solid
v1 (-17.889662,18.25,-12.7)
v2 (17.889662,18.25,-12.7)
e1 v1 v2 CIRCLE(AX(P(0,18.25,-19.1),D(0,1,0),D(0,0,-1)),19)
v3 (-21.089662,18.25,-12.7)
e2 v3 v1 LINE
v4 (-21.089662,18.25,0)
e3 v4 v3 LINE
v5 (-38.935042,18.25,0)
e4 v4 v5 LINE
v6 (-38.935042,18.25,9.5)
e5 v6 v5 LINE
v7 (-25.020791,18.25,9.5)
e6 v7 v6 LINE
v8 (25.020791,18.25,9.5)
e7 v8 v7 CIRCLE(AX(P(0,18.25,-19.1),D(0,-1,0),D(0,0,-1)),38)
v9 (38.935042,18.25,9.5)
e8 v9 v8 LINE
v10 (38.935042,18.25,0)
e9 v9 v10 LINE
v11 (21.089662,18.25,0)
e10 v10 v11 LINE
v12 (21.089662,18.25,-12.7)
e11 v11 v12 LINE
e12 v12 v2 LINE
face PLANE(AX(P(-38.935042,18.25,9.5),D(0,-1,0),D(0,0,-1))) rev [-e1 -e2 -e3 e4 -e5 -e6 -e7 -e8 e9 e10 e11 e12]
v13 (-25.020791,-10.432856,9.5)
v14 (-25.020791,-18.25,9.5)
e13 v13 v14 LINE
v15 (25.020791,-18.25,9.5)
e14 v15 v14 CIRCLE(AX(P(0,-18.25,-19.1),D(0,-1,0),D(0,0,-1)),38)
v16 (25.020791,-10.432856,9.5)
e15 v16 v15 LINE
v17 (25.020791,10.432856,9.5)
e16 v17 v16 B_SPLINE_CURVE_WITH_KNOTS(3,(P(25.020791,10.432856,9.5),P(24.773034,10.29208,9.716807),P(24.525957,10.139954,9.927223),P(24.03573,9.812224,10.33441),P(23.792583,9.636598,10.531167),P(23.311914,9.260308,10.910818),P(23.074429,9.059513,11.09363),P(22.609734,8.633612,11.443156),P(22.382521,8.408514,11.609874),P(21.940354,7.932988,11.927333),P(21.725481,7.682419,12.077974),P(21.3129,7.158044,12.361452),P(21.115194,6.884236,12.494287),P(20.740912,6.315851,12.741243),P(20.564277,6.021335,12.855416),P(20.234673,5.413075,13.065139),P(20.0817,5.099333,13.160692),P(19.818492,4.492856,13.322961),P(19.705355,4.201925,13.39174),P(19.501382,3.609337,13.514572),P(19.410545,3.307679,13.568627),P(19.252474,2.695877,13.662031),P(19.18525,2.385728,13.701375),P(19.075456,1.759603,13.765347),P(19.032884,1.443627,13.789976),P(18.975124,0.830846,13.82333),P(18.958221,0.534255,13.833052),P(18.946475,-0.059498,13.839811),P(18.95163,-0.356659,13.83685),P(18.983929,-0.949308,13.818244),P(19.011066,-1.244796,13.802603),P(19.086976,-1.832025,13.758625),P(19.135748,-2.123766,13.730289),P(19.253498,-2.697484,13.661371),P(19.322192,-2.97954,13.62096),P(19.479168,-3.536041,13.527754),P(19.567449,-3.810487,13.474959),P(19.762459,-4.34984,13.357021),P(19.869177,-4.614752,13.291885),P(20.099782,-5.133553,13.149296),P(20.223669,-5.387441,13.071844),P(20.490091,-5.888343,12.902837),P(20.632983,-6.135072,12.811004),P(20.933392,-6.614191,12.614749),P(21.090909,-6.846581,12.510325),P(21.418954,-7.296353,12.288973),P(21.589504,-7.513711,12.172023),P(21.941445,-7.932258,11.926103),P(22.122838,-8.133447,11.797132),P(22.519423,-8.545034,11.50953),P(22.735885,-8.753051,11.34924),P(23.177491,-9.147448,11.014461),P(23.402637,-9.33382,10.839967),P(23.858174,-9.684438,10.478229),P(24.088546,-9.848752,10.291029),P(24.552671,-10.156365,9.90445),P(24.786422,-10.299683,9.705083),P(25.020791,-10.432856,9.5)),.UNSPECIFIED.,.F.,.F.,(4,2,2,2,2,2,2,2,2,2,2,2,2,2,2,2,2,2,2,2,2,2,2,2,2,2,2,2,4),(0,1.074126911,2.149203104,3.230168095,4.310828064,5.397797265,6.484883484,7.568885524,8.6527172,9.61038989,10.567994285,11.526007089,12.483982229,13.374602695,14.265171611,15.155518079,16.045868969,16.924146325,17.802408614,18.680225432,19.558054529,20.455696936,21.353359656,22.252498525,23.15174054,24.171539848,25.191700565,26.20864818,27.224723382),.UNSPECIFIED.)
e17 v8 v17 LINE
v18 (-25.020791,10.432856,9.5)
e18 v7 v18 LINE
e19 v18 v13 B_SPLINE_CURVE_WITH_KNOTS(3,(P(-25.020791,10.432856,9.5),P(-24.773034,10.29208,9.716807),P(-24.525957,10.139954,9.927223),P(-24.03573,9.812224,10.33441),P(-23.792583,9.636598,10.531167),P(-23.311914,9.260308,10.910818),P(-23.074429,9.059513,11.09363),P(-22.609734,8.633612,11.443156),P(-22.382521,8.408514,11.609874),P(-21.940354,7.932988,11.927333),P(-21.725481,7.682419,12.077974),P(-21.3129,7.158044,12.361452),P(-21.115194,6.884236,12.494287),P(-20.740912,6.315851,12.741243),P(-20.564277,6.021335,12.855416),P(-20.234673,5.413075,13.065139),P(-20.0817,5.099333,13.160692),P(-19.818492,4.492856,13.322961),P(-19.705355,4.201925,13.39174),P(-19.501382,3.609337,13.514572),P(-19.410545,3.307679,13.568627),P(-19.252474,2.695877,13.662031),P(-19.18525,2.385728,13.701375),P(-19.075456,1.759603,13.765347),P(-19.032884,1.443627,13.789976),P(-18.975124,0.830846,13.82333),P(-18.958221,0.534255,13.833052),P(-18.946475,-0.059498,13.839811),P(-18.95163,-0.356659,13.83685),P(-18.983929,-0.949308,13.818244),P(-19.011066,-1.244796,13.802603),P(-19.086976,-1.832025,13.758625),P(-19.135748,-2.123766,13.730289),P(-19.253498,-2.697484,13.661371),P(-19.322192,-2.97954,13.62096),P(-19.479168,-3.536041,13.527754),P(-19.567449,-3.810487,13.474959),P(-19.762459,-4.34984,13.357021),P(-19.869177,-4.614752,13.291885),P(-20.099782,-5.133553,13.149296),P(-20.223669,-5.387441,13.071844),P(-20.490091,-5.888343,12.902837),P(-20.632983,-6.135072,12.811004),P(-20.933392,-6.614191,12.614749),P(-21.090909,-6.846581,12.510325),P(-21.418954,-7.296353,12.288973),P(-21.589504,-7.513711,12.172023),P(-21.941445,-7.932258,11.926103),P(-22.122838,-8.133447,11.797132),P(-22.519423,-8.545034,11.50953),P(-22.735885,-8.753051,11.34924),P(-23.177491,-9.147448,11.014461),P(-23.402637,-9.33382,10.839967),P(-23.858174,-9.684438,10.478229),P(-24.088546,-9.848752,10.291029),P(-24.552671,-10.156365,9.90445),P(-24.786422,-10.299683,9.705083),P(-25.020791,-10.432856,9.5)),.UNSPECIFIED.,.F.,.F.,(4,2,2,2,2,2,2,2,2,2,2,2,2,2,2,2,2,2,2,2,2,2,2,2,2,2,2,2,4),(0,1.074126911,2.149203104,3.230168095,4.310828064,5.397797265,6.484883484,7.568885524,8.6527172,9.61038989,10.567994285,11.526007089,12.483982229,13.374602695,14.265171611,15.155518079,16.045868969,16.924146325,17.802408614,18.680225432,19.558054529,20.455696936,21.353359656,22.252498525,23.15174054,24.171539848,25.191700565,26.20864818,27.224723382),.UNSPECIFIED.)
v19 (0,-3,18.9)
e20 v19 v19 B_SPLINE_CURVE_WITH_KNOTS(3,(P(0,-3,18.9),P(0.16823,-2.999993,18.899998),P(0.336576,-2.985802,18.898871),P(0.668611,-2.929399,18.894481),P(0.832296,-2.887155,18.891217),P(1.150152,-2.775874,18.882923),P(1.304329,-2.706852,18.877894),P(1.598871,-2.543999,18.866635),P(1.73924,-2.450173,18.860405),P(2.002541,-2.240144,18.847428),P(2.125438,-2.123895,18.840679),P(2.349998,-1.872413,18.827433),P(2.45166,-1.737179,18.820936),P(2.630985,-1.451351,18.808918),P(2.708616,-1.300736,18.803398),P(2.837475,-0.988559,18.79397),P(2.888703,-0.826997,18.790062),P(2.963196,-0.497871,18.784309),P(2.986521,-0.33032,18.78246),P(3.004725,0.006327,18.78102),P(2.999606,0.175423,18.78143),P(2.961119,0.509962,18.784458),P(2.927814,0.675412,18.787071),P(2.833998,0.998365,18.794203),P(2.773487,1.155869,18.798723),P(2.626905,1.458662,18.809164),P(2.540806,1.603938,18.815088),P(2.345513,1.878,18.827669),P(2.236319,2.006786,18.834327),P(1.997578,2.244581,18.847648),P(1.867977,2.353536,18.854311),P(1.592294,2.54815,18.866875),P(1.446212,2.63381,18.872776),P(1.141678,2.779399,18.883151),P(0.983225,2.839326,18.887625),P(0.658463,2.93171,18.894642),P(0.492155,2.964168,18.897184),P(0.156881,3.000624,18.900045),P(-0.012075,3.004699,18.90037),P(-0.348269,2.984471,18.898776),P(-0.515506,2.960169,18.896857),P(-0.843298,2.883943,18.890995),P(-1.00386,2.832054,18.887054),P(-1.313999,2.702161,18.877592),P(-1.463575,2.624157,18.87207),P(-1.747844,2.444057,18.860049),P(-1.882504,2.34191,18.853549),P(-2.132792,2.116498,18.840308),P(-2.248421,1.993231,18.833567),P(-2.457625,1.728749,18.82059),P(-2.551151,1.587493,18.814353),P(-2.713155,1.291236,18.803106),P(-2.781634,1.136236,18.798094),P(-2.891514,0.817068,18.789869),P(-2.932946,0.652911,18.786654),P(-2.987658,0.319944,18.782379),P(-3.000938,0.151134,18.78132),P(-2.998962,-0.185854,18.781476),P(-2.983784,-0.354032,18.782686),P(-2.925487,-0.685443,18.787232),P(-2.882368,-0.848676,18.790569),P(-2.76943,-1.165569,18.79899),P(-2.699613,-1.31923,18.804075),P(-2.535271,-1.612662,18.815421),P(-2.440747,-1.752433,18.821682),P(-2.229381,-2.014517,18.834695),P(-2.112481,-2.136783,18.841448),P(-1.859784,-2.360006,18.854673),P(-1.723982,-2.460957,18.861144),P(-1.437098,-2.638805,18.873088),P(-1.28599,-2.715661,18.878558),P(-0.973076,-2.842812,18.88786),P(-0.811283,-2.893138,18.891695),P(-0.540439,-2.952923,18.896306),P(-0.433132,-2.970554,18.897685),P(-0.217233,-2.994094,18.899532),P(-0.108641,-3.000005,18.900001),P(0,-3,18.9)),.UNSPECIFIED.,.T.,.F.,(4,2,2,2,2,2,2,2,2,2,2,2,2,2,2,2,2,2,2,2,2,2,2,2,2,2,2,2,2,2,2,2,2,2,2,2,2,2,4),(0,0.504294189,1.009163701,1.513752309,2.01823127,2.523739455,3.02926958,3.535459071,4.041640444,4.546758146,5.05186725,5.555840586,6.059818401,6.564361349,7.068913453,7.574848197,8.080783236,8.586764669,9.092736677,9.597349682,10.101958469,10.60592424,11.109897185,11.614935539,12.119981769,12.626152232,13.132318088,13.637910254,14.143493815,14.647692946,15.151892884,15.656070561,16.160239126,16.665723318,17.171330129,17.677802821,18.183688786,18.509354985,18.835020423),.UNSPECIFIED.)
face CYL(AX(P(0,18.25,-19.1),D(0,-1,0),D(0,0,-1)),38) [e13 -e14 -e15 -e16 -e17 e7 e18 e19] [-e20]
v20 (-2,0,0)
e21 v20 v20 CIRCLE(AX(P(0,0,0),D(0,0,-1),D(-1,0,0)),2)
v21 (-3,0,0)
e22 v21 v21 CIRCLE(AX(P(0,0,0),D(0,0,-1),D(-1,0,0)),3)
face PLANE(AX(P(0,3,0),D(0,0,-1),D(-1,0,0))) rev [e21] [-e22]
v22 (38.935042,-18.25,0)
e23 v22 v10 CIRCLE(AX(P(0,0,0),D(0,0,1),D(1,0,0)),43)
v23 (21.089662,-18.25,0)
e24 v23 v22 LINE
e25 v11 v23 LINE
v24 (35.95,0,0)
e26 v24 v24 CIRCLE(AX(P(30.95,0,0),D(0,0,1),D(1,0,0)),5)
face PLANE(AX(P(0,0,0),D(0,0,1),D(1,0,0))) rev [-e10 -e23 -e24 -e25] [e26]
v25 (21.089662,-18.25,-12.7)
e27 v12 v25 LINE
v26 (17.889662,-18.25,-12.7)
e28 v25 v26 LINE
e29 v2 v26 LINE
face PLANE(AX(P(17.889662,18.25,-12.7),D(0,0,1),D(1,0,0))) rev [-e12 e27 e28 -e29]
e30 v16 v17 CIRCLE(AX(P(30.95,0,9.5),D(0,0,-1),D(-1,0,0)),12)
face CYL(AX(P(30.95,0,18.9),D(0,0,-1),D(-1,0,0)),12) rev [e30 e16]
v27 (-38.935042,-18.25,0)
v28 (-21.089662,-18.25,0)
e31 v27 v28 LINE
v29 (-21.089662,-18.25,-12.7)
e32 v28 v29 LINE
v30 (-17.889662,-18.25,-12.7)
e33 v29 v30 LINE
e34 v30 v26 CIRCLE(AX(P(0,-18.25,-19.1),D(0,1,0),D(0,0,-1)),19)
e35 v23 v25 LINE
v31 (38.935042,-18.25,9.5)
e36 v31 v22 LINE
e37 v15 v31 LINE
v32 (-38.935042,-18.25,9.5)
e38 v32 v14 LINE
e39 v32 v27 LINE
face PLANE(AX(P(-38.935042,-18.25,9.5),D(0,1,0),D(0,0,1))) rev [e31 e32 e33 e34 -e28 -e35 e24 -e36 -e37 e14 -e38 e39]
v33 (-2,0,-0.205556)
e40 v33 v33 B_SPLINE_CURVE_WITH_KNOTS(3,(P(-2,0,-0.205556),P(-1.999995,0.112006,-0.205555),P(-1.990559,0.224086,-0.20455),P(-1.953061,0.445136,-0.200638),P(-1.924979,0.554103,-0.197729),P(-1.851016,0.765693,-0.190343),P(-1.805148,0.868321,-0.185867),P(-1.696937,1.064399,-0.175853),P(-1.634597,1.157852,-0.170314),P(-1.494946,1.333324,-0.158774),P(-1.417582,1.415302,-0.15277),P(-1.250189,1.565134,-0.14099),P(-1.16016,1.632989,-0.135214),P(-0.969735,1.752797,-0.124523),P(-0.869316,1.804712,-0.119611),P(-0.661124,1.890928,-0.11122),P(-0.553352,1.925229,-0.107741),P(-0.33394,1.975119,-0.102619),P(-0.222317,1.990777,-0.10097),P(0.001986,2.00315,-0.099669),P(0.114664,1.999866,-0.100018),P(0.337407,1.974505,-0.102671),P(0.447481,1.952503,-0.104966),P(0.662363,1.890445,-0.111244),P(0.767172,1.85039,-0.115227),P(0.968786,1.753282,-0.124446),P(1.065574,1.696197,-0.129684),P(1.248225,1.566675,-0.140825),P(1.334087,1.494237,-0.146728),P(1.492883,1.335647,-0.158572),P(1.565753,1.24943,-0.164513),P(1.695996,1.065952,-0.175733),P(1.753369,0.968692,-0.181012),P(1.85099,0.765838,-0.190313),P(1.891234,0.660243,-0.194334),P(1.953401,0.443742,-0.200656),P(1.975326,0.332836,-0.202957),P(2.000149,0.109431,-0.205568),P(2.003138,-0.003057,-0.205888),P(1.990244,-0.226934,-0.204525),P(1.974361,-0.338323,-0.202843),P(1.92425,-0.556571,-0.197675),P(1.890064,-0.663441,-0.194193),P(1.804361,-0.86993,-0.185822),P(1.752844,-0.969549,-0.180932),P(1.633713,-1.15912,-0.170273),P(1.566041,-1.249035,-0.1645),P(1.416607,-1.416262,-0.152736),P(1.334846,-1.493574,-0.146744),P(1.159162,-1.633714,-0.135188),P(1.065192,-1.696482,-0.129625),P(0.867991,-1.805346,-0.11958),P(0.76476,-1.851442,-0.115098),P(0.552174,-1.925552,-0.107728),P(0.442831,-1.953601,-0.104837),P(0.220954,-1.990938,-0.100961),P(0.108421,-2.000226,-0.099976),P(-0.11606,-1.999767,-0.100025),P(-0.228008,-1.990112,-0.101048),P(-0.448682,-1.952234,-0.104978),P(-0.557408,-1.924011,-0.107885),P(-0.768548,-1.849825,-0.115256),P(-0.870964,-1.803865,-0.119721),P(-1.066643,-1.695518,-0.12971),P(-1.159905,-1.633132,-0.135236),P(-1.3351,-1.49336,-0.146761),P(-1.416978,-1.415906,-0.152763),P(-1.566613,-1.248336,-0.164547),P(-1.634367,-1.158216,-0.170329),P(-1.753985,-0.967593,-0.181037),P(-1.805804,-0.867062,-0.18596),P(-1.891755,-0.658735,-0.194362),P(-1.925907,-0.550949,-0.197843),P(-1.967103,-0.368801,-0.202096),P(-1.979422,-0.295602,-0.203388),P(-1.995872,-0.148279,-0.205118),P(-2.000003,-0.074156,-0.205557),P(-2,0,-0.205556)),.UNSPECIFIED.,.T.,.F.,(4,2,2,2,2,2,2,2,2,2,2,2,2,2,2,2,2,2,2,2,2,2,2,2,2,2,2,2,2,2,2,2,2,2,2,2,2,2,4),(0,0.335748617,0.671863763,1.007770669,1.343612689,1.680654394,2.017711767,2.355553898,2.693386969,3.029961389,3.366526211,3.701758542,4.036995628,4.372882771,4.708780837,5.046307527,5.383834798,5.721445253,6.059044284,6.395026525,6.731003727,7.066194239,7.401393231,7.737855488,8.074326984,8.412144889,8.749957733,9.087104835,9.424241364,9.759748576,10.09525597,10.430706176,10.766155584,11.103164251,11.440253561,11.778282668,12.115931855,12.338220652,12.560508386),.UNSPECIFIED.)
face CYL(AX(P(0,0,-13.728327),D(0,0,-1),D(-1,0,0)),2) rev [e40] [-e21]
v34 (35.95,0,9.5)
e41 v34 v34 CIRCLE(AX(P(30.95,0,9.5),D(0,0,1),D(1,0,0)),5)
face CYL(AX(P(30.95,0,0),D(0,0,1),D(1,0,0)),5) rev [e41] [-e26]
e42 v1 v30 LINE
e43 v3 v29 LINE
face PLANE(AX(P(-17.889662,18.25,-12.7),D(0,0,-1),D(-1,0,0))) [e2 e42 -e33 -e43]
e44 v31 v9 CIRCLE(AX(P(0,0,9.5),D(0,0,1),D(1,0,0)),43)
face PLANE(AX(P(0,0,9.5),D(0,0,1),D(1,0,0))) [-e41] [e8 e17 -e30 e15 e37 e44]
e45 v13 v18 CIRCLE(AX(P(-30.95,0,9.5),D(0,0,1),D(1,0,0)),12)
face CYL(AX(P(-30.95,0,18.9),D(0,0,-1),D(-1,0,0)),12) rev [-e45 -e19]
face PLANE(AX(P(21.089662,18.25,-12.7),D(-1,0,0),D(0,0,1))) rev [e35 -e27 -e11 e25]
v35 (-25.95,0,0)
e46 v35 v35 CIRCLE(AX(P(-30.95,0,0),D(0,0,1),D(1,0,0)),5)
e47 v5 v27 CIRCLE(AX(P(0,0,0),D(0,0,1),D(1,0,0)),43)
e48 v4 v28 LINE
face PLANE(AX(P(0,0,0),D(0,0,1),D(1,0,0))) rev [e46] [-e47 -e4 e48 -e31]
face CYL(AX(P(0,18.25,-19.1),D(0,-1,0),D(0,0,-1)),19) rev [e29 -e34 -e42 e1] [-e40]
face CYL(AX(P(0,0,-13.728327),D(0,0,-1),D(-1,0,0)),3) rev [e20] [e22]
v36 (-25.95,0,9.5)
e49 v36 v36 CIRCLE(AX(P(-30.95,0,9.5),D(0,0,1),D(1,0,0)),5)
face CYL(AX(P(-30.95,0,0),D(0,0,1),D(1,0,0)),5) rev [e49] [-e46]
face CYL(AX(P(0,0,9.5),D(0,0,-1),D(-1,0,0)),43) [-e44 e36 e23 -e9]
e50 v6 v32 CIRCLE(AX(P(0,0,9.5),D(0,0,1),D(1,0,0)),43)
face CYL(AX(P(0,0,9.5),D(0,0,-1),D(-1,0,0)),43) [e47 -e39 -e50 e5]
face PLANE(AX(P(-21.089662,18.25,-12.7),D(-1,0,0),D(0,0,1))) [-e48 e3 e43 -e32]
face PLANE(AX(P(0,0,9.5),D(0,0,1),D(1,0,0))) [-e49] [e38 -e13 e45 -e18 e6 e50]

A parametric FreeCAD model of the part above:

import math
import FreeCAD as App
import Part
import Sketcher
from FreeCAD import Vector

doc = App.newDocument("Part")
body = doc.addObject("PartDesign::Body", "Body")

# Sketch on XY plane
sketch1 = body.newObject("Sketcher::SketchObject", "Sketch")
sketch1.AttachmentSupport = (doc.getObject("XY_Plane"), [""])
sketch1.MapMode = "FlatFace"
sketch1.addGeometry([
    Part.LineSegment(Vector(39, 18, 0), Vector(-39, 18, 0)),
    Part.ArcOfCircle(Part.Circle(Vector(0, 0, 0), Vector(0, 0, 1), 43), math.radians(155), math.radians(205)),
    Part.LineSegment(Vector(-39, -18, 0), Vector(39, -18, 0)),
    Part.ArcOfCircle(Part.Circle(Vector(0, 0, 0), Vector(0, 0, 1), 43), math.radians(-25), math.radians(25)),
], False)
sketch1.addConstraint([
    Sketcher.Constraint("Coincident", 0, 2, 1, 1),
    Sketcher.Constraint("Coincident", 1, 2, 2, 1),
    Sketcher.Constraint("Coincident", 2, 2, 3, 1),
    Sketcher.Constraint("Coincident", 3, 2, 0, 1),
    Sketcher.Constraint("Horizontal", 0),
    Sketcher.Constraint("Horizontal", 2),
    Sketcher.Constraint("Coincident", 1, 3, -1, 1),
    Sketcher.Constraint("Coincident", 3, 3, -1, 1),
    Sketcher.Constraint("Equal", 1, 3),
    Sketcher.Constraint("Vertical", 0, 2, 1, 2),
    Sketcher.Constraint("Radius", 1, 43.0),
    Sketcher.Constraint("DistanceY", 1, 2, 0, 2, 36.5),
])
pad1 = body.newObject("PartDesign::Pad", "Pad")
pad1.Profile = sketch1
pad1.Length = 9.5

# Sketch on XY plane
sketch2 = body.newObject("Sketcher::SketchObject", "Sketch001")
sketch2.AttachmentSupport = (doc.getObject("XY_Plane"), [""])
sketch2.MapMode = "FlatFace"
sketch2.AttachmentOffset = App.Placement(Vector(0, 0, 9.5), App.Rotation())
sketch2.addGeometry([
    Part.Circle(Vector(-31, 0, 0), Vector(0, 0, 1), 5),
    Part.Circle(Vector(31, 0, 0), Vector(0, 0, 1), 5),
], False)
sketch2.addConstraint([
    Sketcher.Constraint("Equal", 0, 1),
    Sketcher.Constraint("Symmetric", 0, 3, 1, 3, -1, 1),
    Sketcher.Constraint("PointOnObject", 0, 3, -1),
    Sketcher.Constraint("Diameter", 0, 10.0),
    Sketcher.Constraint("DistanceX", 0, 3, 1, 3, 61.9),
])
pocket1 = body.newObject("PartDesign::Pocket", "Pocket")
pocket1.Profile = sketch2
pocket1.Length = 9.5

# Sketch on XZ plane
sketch3 = body.newObject("Sketcher::SketchObject", "Sketch002")
sketch3.AttachmentSupport = (doc.getObject("XZ_Plane"), [""])
sketch3.MapMode = "FlatFace"
sketch3.AttachmentOffset = App.Placement(Vector(0, 0, 18.25), App.Rotation())
sketch3.addGeometry([
    Part.LineSegment(Vector(0, -0.1, 0), Vector(0, 0, 0)),  # 0
    Part.LineSegment(Vector(0, 0, 0), Vector(-21.09, 0, 0)),  # 1
    Part.LineSegment(Vector(-21.09, 0, 0), Vector(-21.09, -12.7, 0)),  # 2
    Part.LineSegment(Vector(-21.09, -12.7, 0), Vector(-17.89, -12.7, 0)),  # 3
    Part.ArcOfCircle(Part.Circle(Vector(0, -19.1, 0), Vector(0, 0, 1), 19), math.radians(90), math.radians(160)),  # 4
    Part.LineSegment(Vector(0, 9.5, 0), Vector(0, 18.9, 0)),  # 5
    Part.ArcOfCircle(Part.Circle(Vector(0, -19.1, 0), Vector(0, 0, 1), 38), math.radians(90), math.radians(131)),  # 6
    Part.LineSegment(Vector(-25.02, 9.5, 0), Vector(0, 9.5, 0)),  # 7
], False)
sketch3.addConstraint([
    Sketcher.Constraint("Coincident", 0, 2, 1, 1),
    Sketcher.Constraint("Coincident", 1, 2, 2, 1),
    Sketcher.Constraint("Coincident", 2, 2, 3, 1),
    Sketcher.Constraint("Coincident", 3, 2, 4, 2),
    Sketcher.Constraint("Coincident", 4, 1, 0, 1),
    Sketcher.Constraint("Coincident", 5, 2, 6, 1),
    Sketcher.Constraint("Coincident", 6, 2, 7, 1),
    Sketcher.Constraint("Coincident", 7, 2, 5, 1),
    Sketcher.Constraint("Vertical", 0),
    Sketcher.Constraint("Horizontal", 1),
    Sketcher.Constraint("Vertical", 2),
    Sketcher.Constraint("Horizontal", 3),
    Sketcher.Constraint("Vertical", 5),
    Sketcher.Constraint("Horizontal", 7),
    Sketcher.Constraint("Coincident", 0, 2, -1, 1),
    Sketcher.Constraint("Coincident", 6, 3, 4, 3),
    Sketcher.Constraint("PointOnObject", 4, 3, -2),
    Sketcher.Constraint("PointOnObject", 5, 2, -2),
    Sketcher.Constraint("Radius", 4, 19.0),
    Sketcher.Constraint("Radius", 6, 38.0),
    Sketcher.Constraint("DistanceX", 3, 1, 3, 2, 3.2),
    Sketcher.Constraint("DistanceY", 0, 1, 0, 2, 0.1),
    Sketcher.Constraint("DistanceY", 2, 2, 2, 1, 12.7),
    Sketcher.Constraint("DistanceY", 5, 1, 5, 2, 9.4),
])
pad2 = body.newObject("PartDesign::Pad", "Pad001")
pad2.Profile = sketch3
pad2.Length = 36.5
pad2.Reversed = True
doc.recompute()

mirrored = body.newObject("PartDesign::Mirrored", "Mirrored")
mirrored.Originals = [pad2]
mirrored.MirrorPlane = (doc.getObject("YZ_Plane"), [""])
body.Tip = mirrored

# Sketch on XY plane
sketch4 = body.newObject("Sketcher::SketchObject", "Sketch003")
sketch4.AttachmentSupport = (doc.getObject("XY_Plane"), [""])
sketch4.MapMode = "FlatFace"
sketch4.AttachmentOffset = App.Placement(Vector(0, 0, 9.5), App.Rotation())
sketch4.addGeometry(Part.Circle(Vector(-31, 0, 0), Vector(0, 0, 1), 12), False)
sketch4.addConstraint([
    Sketcher.Constraint("PointOnObject", 0, 3, -1),
    Sketcher.Constraint("Diameter", 0, 24.0),
    Sketcher.Constraint("DistanceX", 0, 3, -1, 1, 30.95),
])
pocket2 = body.newObject("PartDesign::Pocket", "Pocket001")
pocket2.Profile = sketch4
pocket2.Type = "ThroughAll"
pocket2.Reversed = True
doc.recompute()

mirrored2 = body.newObject("PartDesign::Mirrored", "Mirrored001")
mirrored2.Originals = [pocket2]
mirrored2.MirrorPlane = (doc.getObject("YZ_Plane"), [""])
body.Tip = mirrored2

# Sketch on YZ plane
sketch5 = body.newObject("Sketcher::SketchObject", "Sketch004")
sketch5.AttachmentSupport = (doc.getObject("YZ_Plane"), [""])
sketch5.MapMode = "FlatFace"
sketch5.addGeometry([
    Part.LineSegment(Vector(3, 18.9, 0), Vector(0, 18.9, 0)),  # 0
    Part.LineSegment(Vector(0, 18.9, 0), Vector(0, -13.7, 0)),  # 1
    Part.LineSegment(Vector(0, -13.7, 0), Vector(2, -13.7, 0)),  # 2
    Part.LineSegment(Vector(2, -13.7, 0), Vector(2, 0, 0)),  # 3
    Part.LineSegment(Vector(2, 0, 0), Vector(3, 0, 0)),  # 4
    Part.LineSegment(Vector(3, 0, 0), Vector(3, 18.9, 0)),  # 5
], False)
sketch5.addConstraint([
    Sketcher.Constraint("Coincident", 0, 2, 1, 1),
    Sketcher.Constraint("Coincident", 1, 2, 2, 1),
    Sketcher.Constraint("Coincident", 2, 2, 3, 1),
    Sketcher.Constraint("Coincident", 3, 2, 4, 1),
    Sketcher.Constraint("Coincident", 4, 2, 5, 1),
    Sketcher.Constraint("Coincident", 5, 2, 0, 1),
    Sketcher.Constraint("Horizontal", 0),
    Sketcher.Constraint("Vertical", 1),
    Sketcher.Constraint("Horizontal", 2),
    Sketcher.Constraint("Vertical", 3),
    Sketcher.Constraint("Horizontal", 4),
    Sketcher.Constraint("Vertical", 5),
    Sketcher.Constraint("PointOnObject", 0, 2, -2),
    Sketcher.Constraint("PointOnObject", 3, 2, -1),
    Sketcher.Constraint("DistanceX", 0, 2, 0, 1, 3.0),
    Sketcher.Constraint("DistanceX", 2, 1, 2, 2, 2.0),
    Sketcher.Constraint("DistanceY", 5, 1, 5, 2, 18.9),
    Sketcher.Constraint("DistanceY", 1, 2, 1, 1, 32.628327),
])
groove = body.newObject("PartDesign::Groove", "Groove")
groove.Profile = sketch5
groove.ReferenceAxis = (sketch5, ["V_Axis"])
groove.Angle = 360

doc.recompute()
